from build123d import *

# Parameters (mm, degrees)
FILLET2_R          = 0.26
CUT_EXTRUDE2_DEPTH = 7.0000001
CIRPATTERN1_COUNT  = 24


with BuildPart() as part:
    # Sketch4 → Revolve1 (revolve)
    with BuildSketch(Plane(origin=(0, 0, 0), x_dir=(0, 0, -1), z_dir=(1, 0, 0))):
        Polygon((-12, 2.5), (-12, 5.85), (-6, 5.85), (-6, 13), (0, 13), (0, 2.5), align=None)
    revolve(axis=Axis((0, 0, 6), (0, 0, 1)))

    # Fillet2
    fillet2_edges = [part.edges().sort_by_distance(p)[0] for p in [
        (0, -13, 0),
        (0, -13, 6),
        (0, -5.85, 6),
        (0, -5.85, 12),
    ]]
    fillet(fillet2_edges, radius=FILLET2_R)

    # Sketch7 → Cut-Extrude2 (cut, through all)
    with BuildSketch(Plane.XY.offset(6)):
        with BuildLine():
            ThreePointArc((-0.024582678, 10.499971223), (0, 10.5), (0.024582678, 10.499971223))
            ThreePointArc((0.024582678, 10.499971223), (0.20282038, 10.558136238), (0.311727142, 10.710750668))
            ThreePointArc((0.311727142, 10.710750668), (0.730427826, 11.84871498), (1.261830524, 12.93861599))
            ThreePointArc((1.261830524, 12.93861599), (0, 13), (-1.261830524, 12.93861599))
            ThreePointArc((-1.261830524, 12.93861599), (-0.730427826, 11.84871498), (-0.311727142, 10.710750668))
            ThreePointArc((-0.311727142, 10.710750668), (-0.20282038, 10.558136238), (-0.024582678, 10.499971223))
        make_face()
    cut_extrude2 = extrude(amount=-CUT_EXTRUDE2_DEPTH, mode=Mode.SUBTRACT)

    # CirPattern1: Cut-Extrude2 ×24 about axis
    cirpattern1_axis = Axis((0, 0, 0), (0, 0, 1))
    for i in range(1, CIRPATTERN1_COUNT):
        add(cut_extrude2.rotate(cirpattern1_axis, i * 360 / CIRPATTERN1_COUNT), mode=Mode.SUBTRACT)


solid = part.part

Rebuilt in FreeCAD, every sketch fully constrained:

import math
import FreeCAD as App
import Part
import Sketcher

V = App.Vector
Q = App.Units.Quantity


def edges_at(feature, points):
    """Names of the edges that pass closest to the given points."""
    edges = feature.Shape.Edges
    near = lambda p: min(range(len(edges)), key=lambda i: edges[i].distToShape(Part.Vertex(*p))[0])
    return sorted({f"Edge{near(p) + 1}" for p in points})


def add_polygon(sketch, points):
    """Adds a closed chain of lines whose ends are joined by coincident constraints."""
    first, n = sketch.GeometryCount, len(points)
    for a, b in zip(points, points[1:] + points[:1]):
        sketch.addGeometry(Part.LineSegment(App.Vector(*a, 0), App.Vector(*b, 0)), False)
    for i in range(n):
        sketch.addConstraint(Sketcher.Constraint("Coincident", first + i, 2, first + (i + 1) % n, 1))

doc = App.newDocument("Part")
body = doc.addObject("PartDesign::Body", "Body")

# Sketch on YZ plane
sketch1 = body.newObject("Sketcher::SketchObject", "Sketch")
sketch1.AttachmentSupport = (doc.getObject("YZ_Plane"), [""])
sketch1.MapMode = "FlatFace"
add_polygon(sketch1, [(5.8, 12), (2.5, 12), (2.5, 0), (13, 0), (13, 6), (5.8, 6)])  # lines 0-5
sketch1.addConstraint([
    Sketcher.Constraint("Horizontal", 0),
    Sketcher.Constraint("Vertical", 1),
    Sketcher.Constraint("Horizontal", 2),
    Sketcher.Constraint("Vertical", 3),
    Sketcher.Constraint("Horizontal", 4),
    Sketcher.Constraint("Vertical", 5),
    Sketcher.Constraint("PointOnObject", 1, 2, -1),
    Sketcher.Constraint("Equal", 3, 5),
    Sketcher.Constraint("DistanceY", 1, 2, 1, 1, Q("12 mm")),
    Sketcher.Constraint("DistanceX", 2, 1, 2, 2, Q("10.5 mm")),
    Sketcher.Constraint("DistanceX", -1, 1, 2, 2, Q("13 mm")),
    Sketcher.Constraint("DistanceX", 0, 2, 0, 1, Q("3.35 mm")),
])
revolution = body.newObject("PartDesign::Revolution", "Revolution")
revolution.Profile = sketch1
revolution.ReferenceAxis = (sketch1, ["V_Axis"])
revolution.Angle = 360
doc.recompute()

fillet = body.newObject("PartDesign::Fillet", "Fillet")
fillet.Base = (revolution, edges_at(revolution, [
    (0, -13, 0),
    (0, -13, 6),
    (0, -5.85, 6),
    (0, -5.85, 12),
]))
fillet.Radius = 0.26

# Sketch on XY plane
sketch2 = body.newObject("Sketcher::SketchObject", "Sketch001")
sketch2.AttachmentSupport = (doc.getObject("XY_Plane"), [""])
sketch2.MapMode = "FlatFace"
sketch2.AttachmentOffset = App.Placement(V(0, 0, 6), App.Rotation())
sketch2.addGeometry([
    Part.ArcOfCircle(Part.Circle(V(0, 0, 0), V(0, 0, 1), 10.5), math.radians(89.87), math.radians(90.13)),  # 0
    Part.ArcOfCircle(Part.Circle(V(0.025, 10.8, 0), V(0, 0, 1), 0.3), math.radians(-90), math.radians(-17)),  # 1
    Part.ArcOfCircle(Part.Circle(V(11.769, 7.141, 0), V(0, 0, 1), 12), math.radians(151.11), math.radians(162.7)),  # 2
    Part.ArcOfCircle(Part.Circle(V(0, 0, 0), V(0, 0, 1), 13), math.radians(84.43), math.radians(95.57)),  # 3
    Part.ArcOfCircle(Part.Circle(V(-11.769, 7.141, 0), V(0, 0, 1), 12), math.radians(17.3), math.radians(28.89)),  # 4
    Part.ArcOfCircle(Part.Circle(V(-0.025, 10.8, 0), V(0, 0, 1), 0.3), math.radians(-163), math.radians(-90)),  # 5
], False)
sketch2.addConstraint([
    Sketcher.Constraint("Tangent", 0, 1, 1, 1),
    Sketcher.Constraint("Tangent", 1, 2, 2, 2),
    Sketcher.Constraint("Coincident", 2, 1, 3, 1),
    Sketcher.Constraint("Coincident", 3, 2, 4, 2),
    Sketcher.Constraint("Tangent", 4, 1, 5, 1),
    Sketcher.Constraint("Tangent", 5, 2, 0, 2),
    Sketcher.Constraint("Coincident", 3, 3, -1, 1),
    Sketcher.Constraint("Equal", 2, 4),
    Sketcher.Constraint("Equal", 1, 5),
    Sketcher.Constraint("Symmetric", 2, 3, 4, 3, -2),
    Sketcher.Constraint("PointOnObject", 0, 3, -2),
    Sketcher.Constraint("Radius", 2, Q("12 mm")),
    Sketcher.Constraint("Radius", 3, Q("13 mm")),
    Sketcher.Constraint("Radius", 0, Q("10.499859 mm")),
    Sketcher.Constraint("Radius", 1, Q("0.300022 mm")),
    Sketcher.Constraint("DistanceY", -1, 1, 0, 3, Q("0.000141 mm")),
    Sketcher.Constraint("DistanceY", -1, 1, 1, 2, Q("10.710751 mm")),
    Sketcher.Constraint("DistanceX", -1, 1, 2, 1, Q("1.261831 mm")),
])
pocket1 = body.newObject("PartDesign::Pocket", "Pocket")
pocket1.Profile = sketch2
pocket1.Type = "ThroughAll"
doc.recompute()

polarpattern = body.newObject("PartDesign::PolarPattern", "PolarPattern")
polarpattern.Originals = [pocket1]
polarpattern.Axis = (doc.getObject("Z_Axis"), [""])
polarpattern.Angle = 360
polarpattern.Occurrences = 24
body.Tip = polarpattern

doc.recompute()
